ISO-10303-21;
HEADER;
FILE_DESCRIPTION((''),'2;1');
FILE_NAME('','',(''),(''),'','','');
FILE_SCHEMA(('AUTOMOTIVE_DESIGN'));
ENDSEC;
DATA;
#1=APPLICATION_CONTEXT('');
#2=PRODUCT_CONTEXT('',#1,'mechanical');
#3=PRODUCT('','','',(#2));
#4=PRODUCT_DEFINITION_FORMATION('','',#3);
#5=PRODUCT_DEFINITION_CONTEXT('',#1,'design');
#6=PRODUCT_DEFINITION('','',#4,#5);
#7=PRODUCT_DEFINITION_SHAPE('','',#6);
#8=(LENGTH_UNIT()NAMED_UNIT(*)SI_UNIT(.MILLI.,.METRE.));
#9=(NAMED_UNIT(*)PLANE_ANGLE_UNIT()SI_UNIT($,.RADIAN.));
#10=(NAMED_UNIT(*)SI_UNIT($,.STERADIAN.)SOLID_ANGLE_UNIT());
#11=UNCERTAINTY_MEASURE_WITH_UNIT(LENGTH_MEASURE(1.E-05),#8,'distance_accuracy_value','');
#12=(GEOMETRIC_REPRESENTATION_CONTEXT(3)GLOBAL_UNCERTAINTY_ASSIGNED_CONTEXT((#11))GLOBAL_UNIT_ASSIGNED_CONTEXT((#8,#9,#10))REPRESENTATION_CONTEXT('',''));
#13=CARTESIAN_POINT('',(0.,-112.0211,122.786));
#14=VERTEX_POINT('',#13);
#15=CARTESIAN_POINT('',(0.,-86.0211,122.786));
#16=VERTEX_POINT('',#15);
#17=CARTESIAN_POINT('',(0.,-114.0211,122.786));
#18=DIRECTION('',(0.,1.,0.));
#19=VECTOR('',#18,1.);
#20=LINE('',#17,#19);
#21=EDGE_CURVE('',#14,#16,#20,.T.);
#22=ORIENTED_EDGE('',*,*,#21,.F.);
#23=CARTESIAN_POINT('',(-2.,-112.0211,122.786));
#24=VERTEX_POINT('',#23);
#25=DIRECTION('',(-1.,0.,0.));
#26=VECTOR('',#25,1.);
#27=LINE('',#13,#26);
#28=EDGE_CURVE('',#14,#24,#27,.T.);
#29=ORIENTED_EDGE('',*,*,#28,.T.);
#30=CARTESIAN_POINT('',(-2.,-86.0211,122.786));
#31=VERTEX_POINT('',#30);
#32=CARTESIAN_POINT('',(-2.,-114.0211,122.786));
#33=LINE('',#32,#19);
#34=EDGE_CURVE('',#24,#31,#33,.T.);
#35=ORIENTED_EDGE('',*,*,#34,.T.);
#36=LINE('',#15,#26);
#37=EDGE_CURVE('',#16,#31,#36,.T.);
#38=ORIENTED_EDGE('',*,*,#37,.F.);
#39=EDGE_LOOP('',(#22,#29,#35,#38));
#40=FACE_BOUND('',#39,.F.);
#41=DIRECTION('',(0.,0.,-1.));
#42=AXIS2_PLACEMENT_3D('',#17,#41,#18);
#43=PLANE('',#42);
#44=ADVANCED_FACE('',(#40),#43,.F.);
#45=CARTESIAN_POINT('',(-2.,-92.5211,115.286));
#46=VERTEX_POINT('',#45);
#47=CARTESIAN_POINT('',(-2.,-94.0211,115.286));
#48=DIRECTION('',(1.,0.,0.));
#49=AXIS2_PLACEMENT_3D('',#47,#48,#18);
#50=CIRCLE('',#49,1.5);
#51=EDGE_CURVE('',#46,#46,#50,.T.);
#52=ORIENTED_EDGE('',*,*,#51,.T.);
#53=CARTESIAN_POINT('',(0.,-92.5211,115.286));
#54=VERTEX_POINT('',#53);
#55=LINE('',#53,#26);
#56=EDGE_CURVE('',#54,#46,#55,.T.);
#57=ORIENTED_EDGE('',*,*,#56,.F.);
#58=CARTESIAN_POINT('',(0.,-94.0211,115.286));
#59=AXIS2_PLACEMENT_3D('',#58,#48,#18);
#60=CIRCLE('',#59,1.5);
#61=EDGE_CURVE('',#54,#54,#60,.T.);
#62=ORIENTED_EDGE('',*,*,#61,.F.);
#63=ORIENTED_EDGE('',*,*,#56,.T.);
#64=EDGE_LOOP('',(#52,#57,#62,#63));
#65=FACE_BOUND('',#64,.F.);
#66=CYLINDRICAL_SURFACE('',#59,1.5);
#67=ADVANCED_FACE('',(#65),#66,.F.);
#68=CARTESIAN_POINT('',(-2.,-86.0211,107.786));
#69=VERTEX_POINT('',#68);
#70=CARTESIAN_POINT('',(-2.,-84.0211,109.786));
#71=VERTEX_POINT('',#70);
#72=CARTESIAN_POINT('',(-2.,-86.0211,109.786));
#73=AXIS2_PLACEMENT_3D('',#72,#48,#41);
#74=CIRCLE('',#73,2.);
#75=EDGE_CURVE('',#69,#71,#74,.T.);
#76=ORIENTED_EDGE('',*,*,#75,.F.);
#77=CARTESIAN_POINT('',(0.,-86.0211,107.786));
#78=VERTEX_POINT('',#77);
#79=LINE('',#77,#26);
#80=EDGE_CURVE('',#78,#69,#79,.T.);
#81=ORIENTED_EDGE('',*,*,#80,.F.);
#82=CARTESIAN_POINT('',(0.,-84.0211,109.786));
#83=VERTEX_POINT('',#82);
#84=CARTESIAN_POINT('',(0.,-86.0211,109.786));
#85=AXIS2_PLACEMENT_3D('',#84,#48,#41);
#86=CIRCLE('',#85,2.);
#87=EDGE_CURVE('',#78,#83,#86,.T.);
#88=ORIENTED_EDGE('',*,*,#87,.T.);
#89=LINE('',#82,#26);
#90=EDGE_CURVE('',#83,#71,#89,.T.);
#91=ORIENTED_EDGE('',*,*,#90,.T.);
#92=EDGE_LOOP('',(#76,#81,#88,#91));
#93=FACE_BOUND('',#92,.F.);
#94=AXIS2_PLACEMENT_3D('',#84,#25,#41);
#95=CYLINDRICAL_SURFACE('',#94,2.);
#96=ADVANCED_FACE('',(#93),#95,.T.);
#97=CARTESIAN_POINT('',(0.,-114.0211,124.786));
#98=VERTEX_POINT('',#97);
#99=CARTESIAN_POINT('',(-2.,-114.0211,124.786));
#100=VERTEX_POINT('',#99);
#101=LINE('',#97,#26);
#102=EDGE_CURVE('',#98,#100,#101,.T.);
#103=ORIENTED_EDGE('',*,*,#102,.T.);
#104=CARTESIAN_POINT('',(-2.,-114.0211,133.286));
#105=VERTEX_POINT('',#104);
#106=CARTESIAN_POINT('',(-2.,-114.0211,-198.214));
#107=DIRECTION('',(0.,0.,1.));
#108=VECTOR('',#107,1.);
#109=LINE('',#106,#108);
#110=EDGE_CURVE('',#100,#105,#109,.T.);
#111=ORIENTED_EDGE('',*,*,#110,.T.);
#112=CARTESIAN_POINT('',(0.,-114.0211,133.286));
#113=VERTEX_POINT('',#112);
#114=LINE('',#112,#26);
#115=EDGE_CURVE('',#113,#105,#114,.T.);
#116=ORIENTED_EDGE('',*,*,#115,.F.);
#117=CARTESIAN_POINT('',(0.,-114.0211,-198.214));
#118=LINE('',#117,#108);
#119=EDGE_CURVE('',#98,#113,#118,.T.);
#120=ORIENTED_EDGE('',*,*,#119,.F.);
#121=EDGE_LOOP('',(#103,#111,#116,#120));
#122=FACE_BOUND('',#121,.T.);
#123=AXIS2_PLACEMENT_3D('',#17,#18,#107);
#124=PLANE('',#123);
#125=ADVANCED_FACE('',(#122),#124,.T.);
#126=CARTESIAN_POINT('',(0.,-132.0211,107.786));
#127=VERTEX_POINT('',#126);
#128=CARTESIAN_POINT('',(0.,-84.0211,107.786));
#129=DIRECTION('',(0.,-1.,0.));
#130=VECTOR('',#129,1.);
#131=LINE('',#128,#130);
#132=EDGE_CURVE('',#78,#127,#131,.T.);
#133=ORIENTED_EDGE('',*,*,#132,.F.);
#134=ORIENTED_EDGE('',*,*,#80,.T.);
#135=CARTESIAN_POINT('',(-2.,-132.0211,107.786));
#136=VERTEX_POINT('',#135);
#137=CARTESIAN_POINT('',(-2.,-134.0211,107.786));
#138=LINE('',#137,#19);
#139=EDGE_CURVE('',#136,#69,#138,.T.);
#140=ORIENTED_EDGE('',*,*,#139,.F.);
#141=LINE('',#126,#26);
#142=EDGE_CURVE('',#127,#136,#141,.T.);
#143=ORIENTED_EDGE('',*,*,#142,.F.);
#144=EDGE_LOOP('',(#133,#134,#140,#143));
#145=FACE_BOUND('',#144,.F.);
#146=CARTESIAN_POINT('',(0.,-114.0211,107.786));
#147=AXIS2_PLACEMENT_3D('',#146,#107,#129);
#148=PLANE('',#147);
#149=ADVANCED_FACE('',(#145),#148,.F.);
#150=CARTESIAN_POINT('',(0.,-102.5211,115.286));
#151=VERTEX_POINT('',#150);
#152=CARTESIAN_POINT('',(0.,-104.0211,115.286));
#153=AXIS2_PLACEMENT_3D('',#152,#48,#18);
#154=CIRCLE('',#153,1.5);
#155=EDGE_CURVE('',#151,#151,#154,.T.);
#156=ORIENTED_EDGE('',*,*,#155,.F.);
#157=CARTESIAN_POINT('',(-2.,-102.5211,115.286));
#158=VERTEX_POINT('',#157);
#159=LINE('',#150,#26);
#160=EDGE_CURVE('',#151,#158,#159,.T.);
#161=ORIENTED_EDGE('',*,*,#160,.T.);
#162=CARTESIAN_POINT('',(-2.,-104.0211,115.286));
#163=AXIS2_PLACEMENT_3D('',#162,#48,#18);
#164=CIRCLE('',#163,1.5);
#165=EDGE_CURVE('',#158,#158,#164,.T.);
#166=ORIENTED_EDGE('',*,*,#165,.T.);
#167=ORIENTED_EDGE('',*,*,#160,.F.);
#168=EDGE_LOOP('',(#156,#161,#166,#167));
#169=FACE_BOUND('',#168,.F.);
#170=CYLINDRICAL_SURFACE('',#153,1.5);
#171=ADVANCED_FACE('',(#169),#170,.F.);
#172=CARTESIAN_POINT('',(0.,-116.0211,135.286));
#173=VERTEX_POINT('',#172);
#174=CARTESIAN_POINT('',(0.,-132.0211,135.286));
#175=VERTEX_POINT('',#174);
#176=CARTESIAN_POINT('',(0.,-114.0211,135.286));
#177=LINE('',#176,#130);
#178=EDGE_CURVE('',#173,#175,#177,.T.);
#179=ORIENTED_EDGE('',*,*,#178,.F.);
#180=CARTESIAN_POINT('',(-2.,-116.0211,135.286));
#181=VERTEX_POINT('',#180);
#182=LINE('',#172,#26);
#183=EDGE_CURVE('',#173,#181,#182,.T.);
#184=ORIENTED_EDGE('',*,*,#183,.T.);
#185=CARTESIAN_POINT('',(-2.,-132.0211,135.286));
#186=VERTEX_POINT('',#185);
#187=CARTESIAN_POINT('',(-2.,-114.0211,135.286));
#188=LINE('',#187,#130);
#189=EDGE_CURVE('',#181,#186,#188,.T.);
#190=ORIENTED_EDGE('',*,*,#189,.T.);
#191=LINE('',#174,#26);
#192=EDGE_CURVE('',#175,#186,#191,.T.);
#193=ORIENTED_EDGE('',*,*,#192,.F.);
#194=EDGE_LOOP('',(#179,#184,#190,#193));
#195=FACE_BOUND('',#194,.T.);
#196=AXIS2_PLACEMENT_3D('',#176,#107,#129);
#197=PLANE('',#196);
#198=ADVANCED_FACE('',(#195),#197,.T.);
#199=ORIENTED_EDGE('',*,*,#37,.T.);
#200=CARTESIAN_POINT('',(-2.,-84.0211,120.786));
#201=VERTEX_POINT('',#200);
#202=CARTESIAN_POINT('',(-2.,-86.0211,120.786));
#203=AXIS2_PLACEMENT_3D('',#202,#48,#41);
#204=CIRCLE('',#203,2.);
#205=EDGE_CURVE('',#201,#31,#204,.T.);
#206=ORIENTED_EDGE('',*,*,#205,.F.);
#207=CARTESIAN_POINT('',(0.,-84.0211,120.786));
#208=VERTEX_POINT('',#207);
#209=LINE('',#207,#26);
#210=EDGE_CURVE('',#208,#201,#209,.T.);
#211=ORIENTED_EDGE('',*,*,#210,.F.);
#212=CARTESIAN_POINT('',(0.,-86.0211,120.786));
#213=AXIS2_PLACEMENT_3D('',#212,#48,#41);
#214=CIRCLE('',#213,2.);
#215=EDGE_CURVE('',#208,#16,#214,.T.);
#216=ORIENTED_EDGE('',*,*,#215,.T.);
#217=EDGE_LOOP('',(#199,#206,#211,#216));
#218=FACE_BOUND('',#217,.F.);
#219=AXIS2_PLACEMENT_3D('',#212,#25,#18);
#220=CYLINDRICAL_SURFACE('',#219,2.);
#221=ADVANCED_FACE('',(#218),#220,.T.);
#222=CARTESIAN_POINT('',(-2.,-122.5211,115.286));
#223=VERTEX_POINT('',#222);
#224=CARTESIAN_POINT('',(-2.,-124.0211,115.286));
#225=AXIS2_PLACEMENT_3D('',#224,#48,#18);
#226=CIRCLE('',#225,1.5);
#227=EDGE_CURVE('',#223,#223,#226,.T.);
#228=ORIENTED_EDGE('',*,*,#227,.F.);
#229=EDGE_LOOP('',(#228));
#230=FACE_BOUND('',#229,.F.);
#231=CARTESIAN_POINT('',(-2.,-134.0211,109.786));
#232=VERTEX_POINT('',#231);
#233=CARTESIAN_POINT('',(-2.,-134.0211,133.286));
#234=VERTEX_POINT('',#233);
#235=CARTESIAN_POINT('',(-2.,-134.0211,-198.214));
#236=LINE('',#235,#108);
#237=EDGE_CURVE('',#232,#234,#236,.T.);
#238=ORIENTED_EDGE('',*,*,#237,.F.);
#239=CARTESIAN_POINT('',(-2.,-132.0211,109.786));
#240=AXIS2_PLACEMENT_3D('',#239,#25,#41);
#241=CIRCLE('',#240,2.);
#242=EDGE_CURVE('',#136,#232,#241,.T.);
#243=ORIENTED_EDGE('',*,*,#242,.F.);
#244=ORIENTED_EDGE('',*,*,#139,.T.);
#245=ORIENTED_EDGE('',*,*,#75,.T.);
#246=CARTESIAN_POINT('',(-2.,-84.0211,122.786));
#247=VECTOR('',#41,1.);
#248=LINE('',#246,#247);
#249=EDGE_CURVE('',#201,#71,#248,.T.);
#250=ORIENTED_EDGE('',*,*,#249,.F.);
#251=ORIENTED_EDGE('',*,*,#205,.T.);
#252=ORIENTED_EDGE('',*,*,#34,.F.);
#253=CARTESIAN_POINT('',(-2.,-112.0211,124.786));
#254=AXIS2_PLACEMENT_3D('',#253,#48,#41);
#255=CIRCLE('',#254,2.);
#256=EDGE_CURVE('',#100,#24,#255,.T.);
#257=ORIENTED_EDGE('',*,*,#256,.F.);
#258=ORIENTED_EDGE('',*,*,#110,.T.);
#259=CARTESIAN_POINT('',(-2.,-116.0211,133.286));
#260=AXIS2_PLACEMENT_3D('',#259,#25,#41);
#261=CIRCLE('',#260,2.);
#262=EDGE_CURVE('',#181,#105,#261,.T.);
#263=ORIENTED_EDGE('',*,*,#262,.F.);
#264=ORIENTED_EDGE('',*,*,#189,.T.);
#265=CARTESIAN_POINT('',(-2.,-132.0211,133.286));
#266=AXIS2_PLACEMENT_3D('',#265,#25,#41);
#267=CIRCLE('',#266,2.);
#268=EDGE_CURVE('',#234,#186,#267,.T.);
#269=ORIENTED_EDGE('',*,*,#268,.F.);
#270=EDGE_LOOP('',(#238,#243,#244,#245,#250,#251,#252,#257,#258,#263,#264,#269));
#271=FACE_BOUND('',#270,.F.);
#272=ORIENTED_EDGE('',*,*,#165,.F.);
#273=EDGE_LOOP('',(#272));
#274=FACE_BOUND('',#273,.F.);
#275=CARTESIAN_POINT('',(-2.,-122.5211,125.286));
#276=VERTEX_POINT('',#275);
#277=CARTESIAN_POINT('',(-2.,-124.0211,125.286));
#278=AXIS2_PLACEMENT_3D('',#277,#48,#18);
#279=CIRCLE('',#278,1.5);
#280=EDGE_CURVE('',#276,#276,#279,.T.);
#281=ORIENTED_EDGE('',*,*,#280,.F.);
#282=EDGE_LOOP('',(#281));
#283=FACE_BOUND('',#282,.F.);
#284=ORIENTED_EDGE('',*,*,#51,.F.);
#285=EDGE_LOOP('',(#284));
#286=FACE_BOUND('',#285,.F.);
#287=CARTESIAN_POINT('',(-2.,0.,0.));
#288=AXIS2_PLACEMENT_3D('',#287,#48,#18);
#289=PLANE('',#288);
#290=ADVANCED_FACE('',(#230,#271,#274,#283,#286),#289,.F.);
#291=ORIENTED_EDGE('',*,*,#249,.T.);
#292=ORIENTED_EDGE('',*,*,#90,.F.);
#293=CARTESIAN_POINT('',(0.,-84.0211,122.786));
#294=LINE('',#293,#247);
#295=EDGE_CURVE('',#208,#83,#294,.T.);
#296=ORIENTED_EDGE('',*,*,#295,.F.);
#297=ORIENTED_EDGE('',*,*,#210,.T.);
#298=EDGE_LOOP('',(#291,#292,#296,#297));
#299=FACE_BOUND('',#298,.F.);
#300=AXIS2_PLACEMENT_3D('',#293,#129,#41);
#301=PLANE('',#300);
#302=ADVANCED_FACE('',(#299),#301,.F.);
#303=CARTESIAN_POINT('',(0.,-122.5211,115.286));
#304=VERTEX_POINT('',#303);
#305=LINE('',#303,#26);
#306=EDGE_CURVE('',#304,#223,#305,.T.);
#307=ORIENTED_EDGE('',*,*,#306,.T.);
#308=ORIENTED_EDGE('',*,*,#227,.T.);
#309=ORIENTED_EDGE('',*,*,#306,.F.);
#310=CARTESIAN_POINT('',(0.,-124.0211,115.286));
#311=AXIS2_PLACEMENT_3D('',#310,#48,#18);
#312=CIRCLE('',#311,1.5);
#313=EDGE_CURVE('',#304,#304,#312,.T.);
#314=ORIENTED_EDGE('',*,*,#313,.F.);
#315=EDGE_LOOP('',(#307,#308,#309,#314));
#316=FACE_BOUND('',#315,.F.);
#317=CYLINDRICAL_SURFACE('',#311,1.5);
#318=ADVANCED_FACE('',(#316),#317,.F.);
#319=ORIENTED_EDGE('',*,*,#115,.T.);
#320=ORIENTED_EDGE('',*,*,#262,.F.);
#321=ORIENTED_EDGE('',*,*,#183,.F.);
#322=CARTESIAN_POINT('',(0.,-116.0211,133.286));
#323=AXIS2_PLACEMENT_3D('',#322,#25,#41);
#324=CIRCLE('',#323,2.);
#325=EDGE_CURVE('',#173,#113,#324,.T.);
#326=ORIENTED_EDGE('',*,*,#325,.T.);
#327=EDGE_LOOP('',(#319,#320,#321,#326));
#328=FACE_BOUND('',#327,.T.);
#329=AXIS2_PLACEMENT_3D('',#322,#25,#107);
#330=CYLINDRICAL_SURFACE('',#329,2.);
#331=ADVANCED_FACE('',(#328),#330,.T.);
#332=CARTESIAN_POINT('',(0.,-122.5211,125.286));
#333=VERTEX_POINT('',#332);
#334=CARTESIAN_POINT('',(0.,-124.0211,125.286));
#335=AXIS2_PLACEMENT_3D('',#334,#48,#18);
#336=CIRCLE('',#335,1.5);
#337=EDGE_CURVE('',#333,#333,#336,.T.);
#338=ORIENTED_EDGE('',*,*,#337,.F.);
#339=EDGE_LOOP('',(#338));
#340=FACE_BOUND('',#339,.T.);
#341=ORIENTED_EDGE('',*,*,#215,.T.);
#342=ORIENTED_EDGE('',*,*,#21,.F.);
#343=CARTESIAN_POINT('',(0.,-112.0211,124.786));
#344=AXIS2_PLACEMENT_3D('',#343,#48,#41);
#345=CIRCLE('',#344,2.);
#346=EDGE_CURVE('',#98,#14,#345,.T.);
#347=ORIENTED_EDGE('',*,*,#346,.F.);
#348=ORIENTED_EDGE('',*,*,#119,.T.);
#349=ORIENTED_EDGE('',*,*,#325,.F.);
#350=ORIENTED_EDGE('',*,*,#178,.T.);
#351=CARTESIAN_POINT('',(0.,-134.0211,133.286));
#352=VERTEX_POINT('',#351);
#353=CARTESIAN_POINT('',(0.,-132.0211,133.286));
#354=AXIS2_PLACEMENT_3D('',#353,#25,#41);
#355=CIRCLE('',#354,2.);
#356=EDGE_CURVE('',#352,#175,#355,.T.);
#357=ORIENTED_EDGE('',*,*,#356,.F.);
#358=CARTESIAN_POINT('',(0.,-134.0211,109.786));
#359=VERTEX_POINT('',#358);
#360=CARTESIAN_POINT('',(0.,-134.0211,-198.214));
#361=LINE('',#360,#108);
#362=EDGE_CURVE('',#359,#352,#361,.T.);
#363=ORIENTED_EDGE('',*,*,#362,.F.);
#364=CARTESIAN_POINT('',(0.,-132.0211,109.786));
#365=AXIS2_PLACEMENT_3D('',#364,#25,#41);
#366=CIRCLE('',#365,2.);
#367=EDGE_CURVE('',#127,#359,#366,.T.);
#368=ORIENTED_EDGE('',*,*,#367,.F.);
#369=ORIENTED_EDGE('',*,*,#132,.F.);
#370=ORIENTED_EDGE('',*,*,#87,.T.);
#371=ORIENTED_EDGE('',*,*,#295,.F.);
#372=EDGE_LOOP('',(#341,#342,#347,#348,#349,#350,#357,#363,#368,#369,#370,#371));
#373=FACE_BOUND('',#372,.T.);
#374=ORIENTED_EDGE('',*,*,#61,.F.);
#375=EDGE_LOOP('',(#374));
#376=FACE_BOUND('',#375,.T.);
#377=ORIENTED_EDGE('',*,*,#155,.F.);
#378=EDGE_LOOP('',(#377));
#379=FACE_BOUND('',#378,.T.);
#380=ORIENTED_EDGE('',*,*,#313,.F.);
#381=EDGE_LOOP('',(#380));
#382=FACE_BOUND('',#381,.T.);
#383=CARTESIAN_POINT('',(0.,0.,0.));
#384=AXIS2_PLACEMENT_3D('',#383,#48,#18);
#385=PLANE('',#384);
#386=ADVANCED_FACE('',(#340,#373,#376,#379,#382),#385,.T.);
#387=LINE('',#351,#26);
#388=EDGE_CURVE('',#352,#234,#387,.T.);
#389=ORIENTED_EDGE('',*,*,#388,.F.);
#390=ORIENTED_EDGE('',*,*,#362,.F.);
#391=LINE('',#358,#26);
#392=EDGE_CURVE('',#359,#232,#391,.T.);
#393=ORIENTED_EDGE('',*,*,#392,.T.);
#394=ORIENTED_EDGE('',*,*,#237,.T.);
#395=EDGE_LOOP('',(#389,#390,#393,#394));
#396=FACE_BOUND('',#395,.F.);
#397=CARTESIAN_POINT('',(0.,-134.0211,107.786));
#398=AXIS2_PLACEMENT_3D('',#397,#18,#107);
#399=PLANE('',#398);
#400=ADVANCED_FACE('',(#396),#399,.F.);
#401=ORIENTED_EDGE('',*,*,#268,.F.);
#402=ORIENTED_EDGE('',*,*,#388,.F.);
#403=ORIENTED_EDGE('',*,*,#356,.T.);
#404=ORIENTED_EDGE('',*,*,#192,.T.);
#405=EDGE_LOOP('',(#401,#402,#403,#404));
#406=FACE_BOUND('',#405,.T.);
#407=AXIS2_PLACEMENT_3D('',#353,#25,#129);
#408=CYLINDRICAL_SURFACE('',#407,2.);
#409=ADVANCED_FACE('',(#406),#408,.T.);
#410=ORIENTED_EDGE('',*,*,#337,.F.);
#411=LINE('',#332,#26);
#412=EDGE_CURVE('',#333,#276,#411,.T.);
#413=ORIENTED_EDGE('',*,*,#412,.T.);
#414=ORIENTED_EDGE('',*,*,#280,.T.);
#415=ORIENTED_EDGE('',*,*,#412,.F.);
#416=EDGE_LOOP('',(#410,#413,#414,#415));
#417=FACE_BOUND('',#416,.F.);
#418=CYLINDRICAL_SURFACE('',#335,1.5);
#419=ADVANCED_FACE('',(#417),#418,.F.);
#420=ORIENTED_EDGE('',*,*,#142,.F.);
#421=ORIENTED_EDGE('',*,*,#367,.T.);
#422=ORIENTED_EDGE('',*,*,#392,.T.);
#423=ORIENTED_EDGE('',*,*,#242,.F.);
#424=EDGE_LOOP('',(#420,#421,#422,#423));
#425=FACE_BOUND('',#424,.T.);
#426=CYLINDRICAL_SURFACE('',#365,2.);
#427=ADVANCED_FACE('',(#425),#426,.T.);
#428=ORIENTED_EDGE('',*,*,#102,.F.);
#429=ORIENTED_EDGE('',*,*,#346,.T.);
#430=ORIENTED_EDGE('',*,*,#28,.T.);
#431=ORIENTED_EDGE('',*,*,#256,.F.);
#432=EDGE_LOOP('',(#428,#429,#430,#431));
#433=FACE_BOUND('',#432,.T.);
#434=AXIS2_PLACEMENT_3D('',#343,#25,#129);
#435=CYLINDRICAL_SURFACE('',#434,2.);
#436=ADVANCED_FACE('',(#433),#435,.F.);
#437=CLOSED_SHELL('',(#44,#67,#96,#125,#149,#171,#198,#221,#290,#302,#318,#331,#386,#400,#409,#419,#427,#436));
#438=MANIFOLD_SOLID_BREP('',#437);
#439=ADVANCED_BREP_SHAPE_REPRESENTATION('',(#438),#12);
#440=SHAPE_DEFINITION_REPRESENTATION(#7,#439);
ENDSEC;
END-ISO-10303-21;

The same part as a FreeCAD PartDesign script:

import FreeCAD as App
import Part
import Sketcher

V = App.Vector


def edges_at(feature, points):
    """Names of the edges that pass closest to the given points."""
    edges = feature.Shape.Edges
    near = lambda p: min(range(len(edges)), key=lambda i: edges[i].distToShape(Part.Vertex(*p))[0])
    return sorted({f"Edge{near(p) + 1}" for p in points})

doc = App.newDocument("Part")
body = doc.addObject("PartDesign::Body", "Body")

# Sketch on YZ plane
sketch1 = doc.addObject("Sketcher::SketchObject", "Sketch")
body.addObject(sketch1)
sketch1.AttachmentSupport = (doc.YZ_Plane, [""])
sketch1.MapMode = "FlatFace"
sketch1.addGeometry([
    Part.LineSegment(V(-134.0211, 107.786, 0), V(-84.0211, 107.786, 0)),  # 0
    Part.LineSegment(V(-84.0211, 107.786, 0), V(-84.0211, 122.786, 0)),  # 1
    Part.LineSegment(V(-84.0211, 122.786, 0), V(-114.0211, 122.786, 0)),  # 2
    Part.LineSegment(V(-114.0211, 122.786, 0), V(-114.0211, 135.286, 0)),  # 3
    Part.LineSegment(V(-114.0211, 135.286, 0), V(-134.0211, 135.286, 0)),  # 4
    Part.LineSegment(V(-134.0211, 135.286, 0), V(-134.0211, 107.786, 0)),  # 5
    Part.Circle(V(-124.0211, 115.286, 0), V(0, 0, 1), 1.5),  # 6
    Part.Circle(V(-124.0211, 125.286, 0), V(0, 0, 1), 1.5),  # 7
    Part.Circle(V(-94.0211, 115.286, 0), V(0, 0, 1), 1.5),  # 8
    Part.Circle(V(-104.0211, 115.286, 0), V(0, 0, 1), 1.5),  # 9
], False)
sketch1.addConstraint([
    Sketcher.Constraint("Coincident", 0, 2, 1, 1),
    Sketcher.Constraint("Coincident", 1, 2, 2, 1),
    Sketcher.Constraint("Coincident", 2, 2, 3, 1),
    Sketcher.Constraint("Coincident", 3, 2, 4, 1),
    Sketcher.Constraint("Coincident", 4, 2, 5, 1),
    Sketcher.Constraint("Coincident", 5, 2, 0, 1),
    Sketcher.Constraint("Horizontal", 0),
    Sketcher.Constraint("Vertical", 1),
    Sketcher.Constraint("Horizontal", 2),
    Sketcher.Constraint("Vertical", 3),
    Sketcher.Constraint("Horizontal", 4),
    Sketcher.Constraint("Vertical", 5),
    Sketcher.Constraint("Equal", 6, 7),
    Sketcher.Constraint("Equal", 7, 8),
    Sketcher.Constraint("Equal", 8, 9),
    Sketcher.Constraint("Horizontal", 6, 3, 8, 3),
    Sketcher.Constraint("Horizontal", 8, 3, 9, 3),
    Sketcher.Constraint("Vertical", 6, 3, 7, 3),
    Sketcher.Constraint("Diameter", 6, 3.0),
    Sketcher.Constraint("DistanceX", 2, 2, 2, 1, 30.0),
    Sketcher.Constraint("DistanceX", 4, 2, 4, 1, 20.0),
    Sketcher.Constraint("DistanceY", 1, 1, 1, 2, 15.0),
    Sketcher.Constraint("DistanceY", 6, 3, 7, 3, 10.0),
    Sketcher.Constraint("DistanceX", 6, 3, 8, 3, 30.0),
    Sketcher.Constraint("DistanceX", 9, 3, 8, 3, 10.0),
    Sketcher.Constraint("DistanceX", 8, 3, 0, 2, 10.0),
    Sketcher.Constraint("DistanceY", 7, 3, 3, 2, 10.0),
    Sketcher.Constraint("DistanceY", 0, 2, 8, 3, 7.5),
    Sketcher.Constraint("DistanceX", 6, 3, -1, 1, 124.021),
    Sketcher.Constraint("DistanceY", -1, 1, 6, 3, 115.286),
])
pad1 = doc.addObject("PartDesign::Pad", "Pad")
body.addObject(pad1)
pad1.Profile = sketch1
pad1.Length = 2
pad1.Reversed = True
doc.recompute()

fillet = doc.addObject("PartDesign::Fillet", "Fillet")
body.addObject(fillet)
fillet.Base = (pad1, edges_at(pad1, [
    (-1, -84.021, 122.786),
    (-1, -84.021, 107.786),
    (-1, -114.021, 122.786),
    (-1, -114.021, 135.286),
    (-1, -134.021, 135.286),
    (-1, -134.021, 107.786),
]))
fillet.Radius = 2

doc.recompute()
